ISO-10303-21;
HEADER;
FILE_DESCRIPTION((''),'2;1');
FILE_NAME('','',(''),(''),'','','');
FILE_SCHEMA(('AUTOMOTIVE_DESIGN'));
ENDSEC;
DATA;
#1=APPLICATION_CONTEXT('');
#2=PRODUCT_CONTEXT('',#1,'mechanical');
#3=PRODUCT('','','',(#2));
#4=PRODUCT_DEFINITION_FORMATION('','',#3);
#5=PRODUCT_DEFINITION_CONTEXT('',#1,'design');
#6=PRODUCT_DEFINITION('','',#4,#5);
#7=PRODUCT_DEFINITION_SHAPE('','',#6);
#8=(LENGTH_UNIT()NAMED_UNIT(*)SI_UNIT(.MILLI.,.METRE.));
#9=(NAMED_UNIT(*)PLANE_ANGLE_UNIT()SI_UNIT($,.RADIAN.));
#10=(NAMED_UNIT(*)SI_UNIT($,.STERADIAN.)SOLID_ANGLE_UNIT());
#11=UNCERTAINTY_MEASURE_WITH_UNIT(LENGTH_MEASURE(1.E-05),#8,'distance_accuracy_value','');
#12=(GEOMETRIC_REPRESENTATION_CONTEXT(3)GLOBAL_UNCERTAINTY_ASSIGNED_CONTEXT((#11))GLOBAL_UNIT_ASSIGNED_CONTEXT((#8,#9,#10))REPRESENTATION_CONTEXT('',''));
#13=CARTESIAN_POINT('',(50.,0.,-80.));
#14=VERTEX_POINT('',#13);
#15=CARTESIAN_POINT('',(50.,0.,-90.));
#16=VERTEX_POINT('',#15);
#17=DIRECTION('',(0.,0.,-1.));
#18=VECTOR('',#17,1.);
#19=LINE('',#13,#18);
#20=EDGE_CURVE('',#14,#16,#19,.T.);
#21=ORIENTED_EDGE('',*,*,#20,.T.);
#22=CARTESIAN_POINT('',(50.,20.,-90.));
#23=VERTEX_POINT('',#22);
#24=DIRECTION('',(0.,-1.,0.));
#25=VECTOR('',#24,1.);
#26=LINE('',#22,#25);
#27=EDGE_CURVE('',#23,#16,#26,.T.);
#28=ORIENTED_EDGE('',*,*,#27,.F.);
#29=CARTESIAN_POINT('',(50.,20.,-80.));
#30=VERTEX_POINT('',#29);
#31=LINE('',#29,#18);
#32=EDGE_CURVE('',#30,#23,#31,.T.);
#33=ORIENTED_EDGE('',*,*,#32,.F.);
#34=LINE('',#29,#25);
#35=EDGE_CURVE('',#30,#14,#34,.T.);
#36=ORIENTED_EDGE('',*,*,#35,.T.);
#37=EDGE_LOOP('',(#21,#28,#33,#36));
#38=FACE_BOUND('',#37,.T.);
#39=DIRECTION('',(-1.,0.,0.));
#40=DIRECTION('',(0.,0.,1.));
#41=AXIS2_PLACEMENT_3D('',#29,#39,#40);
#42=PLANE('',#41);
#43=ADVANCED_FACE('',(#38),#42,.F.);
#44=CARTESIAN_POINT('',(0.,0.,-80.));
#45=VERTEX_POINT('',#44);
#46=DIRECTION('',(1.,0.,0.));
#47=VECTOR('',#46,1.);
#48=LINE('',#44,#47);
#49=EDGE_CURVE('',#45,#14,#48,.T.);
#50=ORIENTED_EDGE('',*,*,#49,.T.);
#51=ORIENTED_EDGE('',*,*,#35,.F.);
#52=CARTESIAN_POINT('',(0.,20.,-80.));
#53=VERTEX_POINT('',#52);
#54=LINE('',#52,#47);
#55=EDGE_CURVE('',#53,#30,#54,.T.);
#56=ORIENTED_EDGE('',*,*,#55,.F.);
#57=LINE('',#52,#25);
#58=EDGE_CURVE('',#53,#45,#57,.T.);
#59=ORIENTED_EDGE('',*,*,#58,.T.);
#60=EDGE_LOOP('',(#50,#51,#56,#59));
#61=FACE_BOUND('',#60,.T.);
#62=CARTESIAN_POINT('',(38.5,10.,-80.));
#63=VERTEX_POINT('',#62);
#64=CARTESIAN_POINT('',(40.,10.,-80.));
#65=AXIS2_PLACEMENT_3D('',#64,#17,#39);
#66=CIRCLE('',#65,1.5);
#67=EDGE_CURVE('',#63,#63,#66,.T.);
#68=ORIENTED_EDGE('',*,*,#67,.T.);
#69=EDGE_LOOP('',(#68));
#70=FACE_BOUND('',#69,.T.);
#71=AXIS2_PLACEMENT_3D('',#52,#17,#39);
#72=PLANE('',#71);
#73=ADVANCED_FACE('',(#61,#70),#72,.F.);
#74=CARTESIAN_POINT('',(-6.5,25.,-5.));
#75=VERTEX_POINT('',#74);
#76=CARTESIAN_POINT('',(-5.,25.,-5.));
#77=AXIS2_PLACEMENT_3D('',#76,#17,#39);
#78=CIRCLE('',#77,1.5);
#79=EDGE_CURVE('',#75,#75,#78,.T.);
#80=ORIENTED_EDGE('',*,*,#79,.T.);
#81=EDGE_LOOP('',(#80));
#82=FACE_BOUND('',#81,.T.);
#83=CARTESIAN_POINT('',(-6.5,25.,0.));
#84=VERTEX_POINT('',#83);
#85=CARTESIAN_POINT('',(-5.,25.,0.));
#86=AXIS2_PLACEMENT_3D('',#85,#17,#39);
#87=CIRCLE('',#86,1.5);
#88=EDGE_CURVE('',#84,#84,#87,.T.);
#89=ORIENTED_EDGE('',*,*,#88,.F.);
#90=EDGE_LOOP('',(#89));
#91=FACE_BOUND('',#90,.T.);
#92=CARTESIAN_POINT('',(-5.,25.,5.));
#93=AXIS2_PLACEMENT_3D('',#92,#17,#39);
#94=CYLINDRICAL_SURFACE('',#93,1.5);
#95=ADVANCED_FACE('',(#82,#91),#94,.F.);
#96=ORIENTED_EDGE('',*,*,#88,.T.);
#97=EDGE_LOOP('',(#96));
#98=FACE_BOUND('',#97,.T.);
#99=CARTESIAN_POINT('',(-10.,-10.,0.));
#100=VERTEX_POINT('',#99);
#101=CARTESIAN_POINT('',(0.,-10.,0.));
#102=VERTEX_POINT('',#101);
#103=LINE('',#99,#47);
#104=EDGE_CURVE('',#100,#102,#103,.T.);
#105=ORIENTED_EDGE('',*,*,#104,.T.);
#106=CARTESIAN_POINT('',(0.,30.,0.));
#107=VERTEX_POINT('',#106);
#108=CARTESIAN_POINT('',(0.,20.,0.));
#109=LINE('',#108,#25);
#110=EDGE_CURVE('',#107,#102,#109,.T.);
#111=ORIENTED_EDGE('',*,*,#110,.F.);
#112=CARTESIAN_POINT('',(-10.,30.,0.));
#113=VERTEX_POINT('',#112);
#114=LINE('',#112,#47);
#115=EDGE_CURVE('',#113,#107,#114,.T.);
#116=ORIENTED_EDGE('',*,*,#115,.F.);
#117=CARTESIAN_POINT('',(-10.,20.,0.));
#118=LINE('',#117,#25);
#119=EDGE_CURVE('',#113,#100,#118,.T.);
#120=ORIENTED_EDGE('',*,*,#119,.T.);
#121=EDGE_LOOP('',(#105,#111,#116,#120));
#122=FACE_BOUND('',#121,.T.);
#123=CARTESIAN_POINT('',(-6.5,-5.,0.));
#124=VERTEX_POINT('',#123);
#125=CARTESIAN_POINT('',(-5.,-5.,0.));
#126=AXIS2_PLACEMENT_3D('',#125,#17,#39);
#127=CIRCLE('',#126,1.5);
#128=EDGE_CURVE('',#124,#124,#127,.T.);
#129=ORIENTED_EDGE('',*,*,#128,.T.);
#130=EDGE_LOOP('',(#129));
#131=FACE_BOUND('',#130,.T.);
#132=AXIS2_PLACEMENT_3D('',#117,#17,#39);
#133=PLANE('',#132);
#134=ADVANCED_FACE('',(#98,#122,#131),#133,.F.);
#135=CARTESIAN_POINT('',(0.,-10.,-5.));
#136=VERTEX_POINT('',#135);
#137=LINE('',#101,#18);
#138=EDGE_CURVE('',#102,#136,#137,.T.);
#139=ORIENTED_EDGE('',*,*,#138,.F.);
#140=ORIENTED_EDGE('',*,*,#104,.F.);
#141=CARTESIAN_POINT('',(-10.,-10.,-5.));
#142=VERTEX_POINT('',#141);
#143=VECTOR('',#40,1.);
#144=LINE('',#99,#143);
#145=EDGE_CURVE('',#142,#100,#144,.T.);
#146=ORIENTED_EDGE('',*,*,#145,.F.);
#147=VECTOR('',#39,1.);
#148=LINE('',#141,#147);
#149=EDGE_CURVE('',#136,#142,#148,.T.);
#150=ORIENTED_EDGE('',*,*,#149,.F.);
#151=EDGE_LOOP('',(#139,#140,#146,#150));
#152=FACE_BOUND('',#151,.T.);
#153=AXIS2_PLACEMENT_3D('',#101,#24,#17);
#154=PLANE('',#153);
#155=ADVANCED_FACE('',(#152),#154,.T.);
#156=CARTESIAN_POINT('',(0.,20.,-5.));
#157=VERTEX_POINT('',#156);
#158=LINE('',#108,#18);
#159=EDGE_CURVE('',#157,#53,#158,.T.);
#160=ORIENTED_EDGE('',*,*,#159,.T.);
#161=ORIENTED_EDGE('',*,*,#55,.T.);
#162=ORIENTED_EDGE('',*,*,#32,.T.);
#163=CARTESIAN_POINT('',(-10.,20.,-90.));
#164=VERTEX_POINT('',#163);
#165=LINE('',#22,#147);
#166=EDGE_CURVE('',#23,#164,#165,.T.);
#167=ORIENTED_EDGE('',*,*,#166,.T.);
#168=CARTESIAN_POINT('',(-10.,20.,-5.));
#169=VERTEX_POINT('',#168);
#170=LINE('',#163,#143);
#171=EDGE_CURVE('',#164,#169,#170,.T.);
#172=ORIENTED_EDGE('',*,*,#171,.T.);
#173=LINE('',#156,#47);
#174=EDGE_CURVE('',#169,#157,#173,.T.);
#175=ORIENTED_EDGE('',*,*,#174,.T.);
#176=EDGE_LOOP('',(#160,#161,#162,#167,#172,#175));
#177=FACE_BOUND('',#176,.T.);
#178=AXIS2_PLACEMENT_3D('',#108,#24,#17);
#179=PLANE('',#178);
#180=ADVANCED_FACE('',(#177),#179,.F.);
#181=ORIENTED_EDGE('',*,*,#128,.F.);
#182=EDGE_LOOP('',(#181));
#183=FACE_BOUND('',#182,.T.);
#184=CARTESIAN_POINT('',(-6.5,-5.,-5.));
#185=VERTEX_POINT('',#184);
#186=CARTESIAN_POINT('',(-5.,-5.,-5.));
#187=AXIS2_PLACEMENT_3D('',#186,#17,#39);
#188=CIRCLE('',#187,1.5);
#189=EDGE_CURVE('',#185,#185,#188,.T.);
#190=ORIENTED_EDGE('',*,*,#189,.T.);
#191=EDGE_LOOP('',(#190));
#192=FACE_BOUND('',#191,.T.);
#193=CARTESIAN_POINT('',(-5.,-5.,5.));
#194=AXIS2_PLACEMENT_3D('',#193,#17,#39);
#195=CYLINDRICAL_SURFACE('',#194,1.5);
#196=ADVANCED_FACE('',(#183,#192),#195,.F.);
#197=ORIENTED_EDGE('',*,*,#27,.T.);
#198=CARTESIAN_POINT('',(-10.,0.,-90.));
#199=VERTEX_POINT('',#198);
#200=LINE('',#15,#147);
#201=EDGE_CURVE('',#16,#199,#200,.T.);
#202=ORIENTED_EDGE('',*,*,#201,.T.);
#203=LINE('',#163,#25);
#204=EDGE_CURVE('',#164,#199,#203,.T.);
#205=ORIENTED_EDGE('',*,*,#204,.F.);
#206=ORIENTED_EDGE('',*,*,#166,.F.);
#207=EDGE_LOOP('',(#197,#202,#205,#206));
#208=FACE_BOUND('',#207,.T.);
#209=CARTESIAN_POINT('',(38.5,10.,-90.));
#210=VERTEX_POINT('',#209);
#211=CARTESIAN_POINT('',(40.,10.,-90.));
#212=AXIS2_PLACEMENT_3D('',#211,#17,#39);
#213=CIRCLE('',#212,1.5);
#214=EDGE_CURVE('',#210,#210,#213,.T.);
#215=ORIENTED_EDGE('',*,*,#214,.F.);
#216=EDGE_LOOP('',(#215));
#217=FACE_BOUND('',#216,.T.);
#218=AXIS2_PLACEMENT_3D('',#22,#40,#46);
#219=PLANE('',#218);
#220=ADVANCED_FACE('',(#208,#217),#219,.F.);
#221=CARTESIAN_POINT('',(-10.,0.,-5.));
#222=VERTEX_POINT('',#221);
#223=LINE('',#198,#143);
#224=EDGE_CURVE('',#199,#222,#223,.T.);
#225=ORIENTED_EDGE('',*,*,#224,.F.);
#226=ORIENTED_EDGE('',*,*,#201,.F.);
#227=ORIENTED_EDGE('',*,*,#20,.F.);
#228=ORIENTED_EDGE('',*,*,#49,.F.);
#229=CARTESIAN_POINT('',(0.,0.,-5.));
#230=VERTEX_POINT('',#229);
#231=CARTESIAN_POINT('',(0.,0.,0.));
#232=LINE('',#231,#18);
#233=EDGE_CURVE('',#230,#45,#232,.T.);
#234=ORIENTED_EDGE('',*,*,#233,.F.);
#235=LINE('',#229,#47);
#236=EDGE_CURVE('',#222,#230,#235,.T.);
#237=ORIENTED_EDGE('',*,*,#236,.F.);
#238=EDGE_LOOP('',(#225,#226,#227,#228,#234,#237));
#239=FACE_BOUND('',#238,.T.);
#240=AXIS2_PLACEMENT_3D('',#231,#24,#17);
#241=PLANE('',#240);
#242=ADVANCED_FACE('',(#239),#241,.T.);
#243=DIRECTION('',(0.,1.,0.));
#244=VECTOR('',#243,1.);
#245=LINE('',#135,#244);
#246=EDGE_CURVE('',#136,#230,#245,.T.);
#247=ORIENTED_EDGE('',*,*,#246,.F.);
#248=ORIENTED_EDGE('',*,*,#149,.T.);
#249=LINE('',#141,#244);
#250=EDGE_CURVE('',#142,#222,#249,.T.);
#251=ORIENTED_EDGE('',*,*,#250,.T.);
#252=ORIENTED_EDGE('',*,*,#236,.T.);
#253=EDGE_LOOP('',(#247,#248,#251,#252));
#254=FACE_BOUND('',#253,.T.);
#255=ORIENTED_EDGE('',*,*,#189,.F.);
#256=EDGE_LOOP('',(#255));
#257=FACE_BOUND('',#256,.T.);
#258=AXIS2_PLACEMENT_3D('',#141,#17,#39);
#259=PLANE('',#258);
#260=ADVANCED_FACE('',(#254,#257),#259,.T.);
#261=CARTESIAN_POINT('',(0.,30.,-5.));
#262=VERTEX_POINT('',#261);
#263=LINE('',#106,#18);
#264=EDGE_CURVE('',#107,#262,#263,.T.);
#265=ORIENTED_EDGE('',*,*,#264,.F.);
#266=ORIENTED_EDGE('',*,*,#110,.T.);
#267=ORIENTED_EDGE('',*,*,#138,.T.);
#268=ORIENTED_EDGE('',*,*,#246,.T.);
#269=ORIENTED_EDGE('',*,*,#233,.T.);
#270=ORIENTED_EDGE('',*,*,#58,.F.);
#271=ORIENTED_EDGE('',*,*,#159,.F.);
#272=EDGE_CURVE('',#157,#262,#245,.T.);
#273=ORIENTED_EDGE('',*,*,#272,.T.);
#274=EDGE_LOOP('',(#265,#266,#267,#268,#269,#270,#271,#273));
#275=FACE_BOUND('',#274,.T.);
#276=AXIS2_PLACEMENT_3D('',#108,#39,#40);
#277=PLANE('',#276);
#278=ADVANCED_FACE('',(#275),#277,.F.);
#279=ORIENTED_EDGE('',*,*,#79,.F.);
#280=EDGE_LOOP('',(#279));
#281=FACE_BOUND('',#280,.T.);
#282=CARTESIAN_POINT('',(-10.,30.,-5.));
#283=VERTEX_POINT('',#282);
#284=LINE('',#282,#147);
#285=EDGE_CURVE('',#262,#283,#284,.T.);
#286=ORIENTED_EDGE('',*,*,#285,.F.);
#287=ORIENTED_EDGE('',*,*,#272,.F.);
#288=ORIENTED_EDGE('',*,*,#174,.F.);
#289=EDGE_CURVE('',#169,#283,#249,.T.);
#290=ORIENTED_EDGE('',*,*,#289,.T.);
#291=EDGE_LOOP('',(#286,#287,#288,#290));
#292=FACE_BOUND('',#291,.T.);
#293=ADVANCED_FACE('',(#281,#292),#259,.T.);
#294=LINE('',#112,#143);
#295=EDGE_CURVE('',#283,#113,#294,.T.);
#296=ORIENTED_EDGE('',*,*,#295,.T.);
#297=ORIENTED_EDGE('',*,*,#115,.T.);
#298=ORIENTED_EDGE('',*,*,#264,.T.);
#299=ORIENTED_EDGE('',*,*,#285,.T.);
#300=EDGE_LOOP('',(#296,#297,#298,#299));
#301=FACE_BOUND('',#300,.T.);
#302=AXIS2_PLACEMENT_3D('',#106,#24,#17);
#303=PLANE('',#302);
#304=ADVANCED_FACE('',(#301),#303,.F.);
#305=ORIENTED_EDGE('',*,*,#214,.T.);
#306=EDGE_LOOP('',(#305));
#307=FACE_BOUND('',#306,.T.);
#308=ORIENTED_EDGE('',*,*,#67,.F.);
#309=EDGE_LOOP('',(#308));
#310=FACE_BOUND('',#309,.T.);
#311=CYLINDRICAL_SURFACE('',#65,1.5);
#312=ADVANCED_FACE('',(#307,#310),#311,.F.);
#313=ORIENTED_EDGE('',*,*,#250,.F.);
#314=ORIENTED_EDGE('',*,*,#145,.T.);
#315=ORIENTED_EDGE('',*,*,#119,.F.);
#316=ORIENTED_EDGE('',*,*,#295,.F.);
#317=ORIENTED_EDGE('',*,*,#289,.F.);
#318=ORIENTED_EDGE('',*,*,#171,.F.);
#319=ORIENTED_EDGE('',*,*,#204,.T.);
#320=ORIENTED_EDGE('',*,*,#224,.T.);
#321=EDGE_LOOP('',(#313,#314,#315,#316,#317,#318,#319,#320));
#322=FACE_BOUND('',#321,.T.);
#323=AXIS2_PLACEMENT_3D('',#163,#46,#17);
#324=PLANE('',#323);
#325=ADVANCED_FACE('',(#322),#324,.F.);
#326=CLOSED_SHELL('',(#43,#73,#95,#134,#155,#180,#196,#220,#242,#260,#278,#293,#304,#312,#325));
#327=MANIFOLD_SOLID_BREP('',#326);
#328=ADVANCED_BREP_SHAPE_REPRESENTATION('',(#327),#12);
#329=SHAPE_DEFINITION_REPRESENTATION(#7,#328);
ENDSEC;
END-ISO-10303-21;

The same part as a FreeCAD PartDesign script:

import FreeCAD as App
import Part
import Sketcher

V = App.Vector
Q = App.Units.Quantity

doc = App.newDocument("Part")
body = doc.addObject("PartDesign::Body", "Body")

# Sketch on XZ plane
sketch1 = body.newObject("Sketcher::SketchObject", "Sketch")
sketch1.AttachmentSupport = (doc.getObject("XZ_Plane"), [""])
sketch1.MapMode = "FlatFace"
sketch1.addGeometry([
    Part.LineSegment(V(-10, 0, 0), V(0, 0, 0)),  # 0
    Part.LineSegment(V(0, 0, 0), V(0, -80, 0)),  # 1
    Part.LineSegment(V(0, -80, 0), V(50, -80, 0)),  # 2
    Part.LineSegment(V(50, -80, 0), V(50, -90, 0)),  # 3
    Part.LineSegment(V(50, -90, 0), V(-10, -90, 0)),  # 4
    Part.LineSegment(V(-10, -90, 0), V(-10, 0, 0)),  # 5
], False)
sketch1.addConstraint([
    Sketcher.Constraint("Coincident", 0, 2, 1, 1),
    Sketcher.Constraint("Coincident", 1, 2, 2, 1),
    Sketcher.Constraint("Coincident", 2, 2, 3, 1),
    Sketcher.Constraint("Coincident", 3, 2, 4, 1),
    Sketcher.Constraint("Coincident", 4, 2, 5, 1),
    Sketcher.Constraint("Coincident", 5, 2, 0, 1),
    Sketcher.Constraint("Horizontal", 0),
    Sketcher.Constraint("Vertical", 1),
    Sketcher.Constraint("Horizontal", 2),
    Sketcher.Constraint("Vertical", 3),
    Sketcher.Constraint("Horizontal", 4),
    Sketcher.Constraint("Vertical", 5),
    Sketcher.Constraint("Coincident", 0, 2, -1, 1),
    Sketcher.Constraint("Equal", 0, 3),
    Sketcher.Constraint("DistanceX", 0, 1, 0, 2, Q("10 mm")),
    Sketcher.Constraint("DistanceX", 2, 1, 2, 2, Q("50 mm")),
    Sketcher.Constraint("DistanceY", 1, 2, 1, 1, Q("80 mm")),
])
pad1 = body.newObject("PartDesign::Pad", "Pad")
pad1.Profile = sketch1
pad1.Length = 20
pad1.Reversed = True

# Sketch on XZ plane
sketch2 = body.newObject("Sketcher::SketchObject", "Sketch001")
sketch2.AttachmentSupport = (doc.getObject("XZ_Plane"), [""])
sketch2.MapMode = "FlatFace"
sketch2.AttachmentOffset = App.Placement(V(0, 0, -20), App.Rotation())
sketch2.addGeometry([
    Part.LineSegment(V(-10, -5, 0), V(-10, 0, 0)),
    Part.LineSegment(V(-10, 0, 0), V(0, 0, 0)),
    Part.LineSegment(V(0, 0, 0), V(0, -5, 0)),
    Part.LineSegment(V(0, -5, 0), V(-10, -5, 0)),
], False)
sketch2.addConstraint([
    Sketcher.Constraint("Coincident", 0, 2, 1, 1),
    Sketcher.Constraint("Coincident", 1, 2, 2, 1),
    Sketcher.Constraint("Coincident", 2, 2, 3, 1),
    Sketcher.Constraint("Coincident", 3, 2, 0, 1),
    Sketcher.Constraint("Vertical", 0),
    Sketcher.Constraint("Horizontal", 1),
    Sketcher.Constraint("Vertical", 2),
    Sketcher.Constraint("Horizontal", 3),
    Sketcher.Constraint("Coincident", 1, 2, -1, 1),
    Sketcher.Constraint("DistanceX", 1, 1, 1, 2, Q("10 mm")),
    Sketcher.Constraint("DistanceY", 0, 1, 0, 2, Q("5 mm")),
])
pad2 = body.newObject("PartDesign::Pad", "Pad001")
pad2.Profile = sketch2
pad2.Type = "TwoLengths"
pad2.Length = 10
pad2.Length2 = 30
pad2.Reversed = True

# Sketch on XY plane
sketch3 = body.newObject("Sketcher::SketchObject", "Sketch002")
sketch3.AttachmentSupport = (doc.getObject("XY_Plane"), [""])
sketch3.MapMode = "FlatFace"
sketch3.AttachmentOffset = App.Placement(V(0, 0, -5), App.Rotation())
sketch3.addGeometry([
    Part.Circle(V(-5, 25, 0), V(0, 0, 1), 1.5),
    Part.Circle(V(-5, -5, 0), V(0, 0, 1), 1.5),
], False)
sketch3.addConstraint([
    Sketcher.Constraint("Equal", 0, 1),
    Sketcher.Constraint("Vertical", 0, 3, 1, 3),
    Sketcher.Constraint("Diameter", 0, Q("3 mm")),
    Sketcher.Constraint("DistanceX", 0, 3, -1, 1, Q("5 mm")),
    Sketcher.Constraint("DistanceY", -1, 1, 0, 3, Q("25 mm")),
    Sketcher.Constraint("DistanceY", 1, 3, -1, 1, Q("5 mm")),
])
pocket1 = body.newObject("PartDesign::Pocket", "Pocket")
pocket1.Profile = sketch3
pocket1.Length = 10
pocket1.Reversed = True

# Sketch on XY plane
sketch4 = body.newObject("Sketcher::SketchObject", "Sketch003")
sketch4.AttachmentSupport = (doc.getObject("XY_Plane"), [""])
sketch4.MapMode = "FlatFace"
sketch4.AttachmentOffset = App.Placement(V(0, 0, -90), App.Rotation())
sketch4.addGeometry(Part.Circle(V(40, 10, 0), V(0, 0, 1), 1.5), False)
sketch4.addConstraint([
    Sketcher.Constraint("Diameter", 0, Q("3 mm")),
    Sketcher.Constraint("DistanceX", -1, 1, 0, 3, Q("40 mm")),
    Sketcher.Constraint("DistanceY", -1, 1, 0, 3, Q("10 mm")),
])
pocket2 = body.newObject("PartDesign::Pocket", "Pocket001")
pocket2.Profile = sketch4
pocket2.Length = 10
pocket2.Reversed = True

doc.recompute()
